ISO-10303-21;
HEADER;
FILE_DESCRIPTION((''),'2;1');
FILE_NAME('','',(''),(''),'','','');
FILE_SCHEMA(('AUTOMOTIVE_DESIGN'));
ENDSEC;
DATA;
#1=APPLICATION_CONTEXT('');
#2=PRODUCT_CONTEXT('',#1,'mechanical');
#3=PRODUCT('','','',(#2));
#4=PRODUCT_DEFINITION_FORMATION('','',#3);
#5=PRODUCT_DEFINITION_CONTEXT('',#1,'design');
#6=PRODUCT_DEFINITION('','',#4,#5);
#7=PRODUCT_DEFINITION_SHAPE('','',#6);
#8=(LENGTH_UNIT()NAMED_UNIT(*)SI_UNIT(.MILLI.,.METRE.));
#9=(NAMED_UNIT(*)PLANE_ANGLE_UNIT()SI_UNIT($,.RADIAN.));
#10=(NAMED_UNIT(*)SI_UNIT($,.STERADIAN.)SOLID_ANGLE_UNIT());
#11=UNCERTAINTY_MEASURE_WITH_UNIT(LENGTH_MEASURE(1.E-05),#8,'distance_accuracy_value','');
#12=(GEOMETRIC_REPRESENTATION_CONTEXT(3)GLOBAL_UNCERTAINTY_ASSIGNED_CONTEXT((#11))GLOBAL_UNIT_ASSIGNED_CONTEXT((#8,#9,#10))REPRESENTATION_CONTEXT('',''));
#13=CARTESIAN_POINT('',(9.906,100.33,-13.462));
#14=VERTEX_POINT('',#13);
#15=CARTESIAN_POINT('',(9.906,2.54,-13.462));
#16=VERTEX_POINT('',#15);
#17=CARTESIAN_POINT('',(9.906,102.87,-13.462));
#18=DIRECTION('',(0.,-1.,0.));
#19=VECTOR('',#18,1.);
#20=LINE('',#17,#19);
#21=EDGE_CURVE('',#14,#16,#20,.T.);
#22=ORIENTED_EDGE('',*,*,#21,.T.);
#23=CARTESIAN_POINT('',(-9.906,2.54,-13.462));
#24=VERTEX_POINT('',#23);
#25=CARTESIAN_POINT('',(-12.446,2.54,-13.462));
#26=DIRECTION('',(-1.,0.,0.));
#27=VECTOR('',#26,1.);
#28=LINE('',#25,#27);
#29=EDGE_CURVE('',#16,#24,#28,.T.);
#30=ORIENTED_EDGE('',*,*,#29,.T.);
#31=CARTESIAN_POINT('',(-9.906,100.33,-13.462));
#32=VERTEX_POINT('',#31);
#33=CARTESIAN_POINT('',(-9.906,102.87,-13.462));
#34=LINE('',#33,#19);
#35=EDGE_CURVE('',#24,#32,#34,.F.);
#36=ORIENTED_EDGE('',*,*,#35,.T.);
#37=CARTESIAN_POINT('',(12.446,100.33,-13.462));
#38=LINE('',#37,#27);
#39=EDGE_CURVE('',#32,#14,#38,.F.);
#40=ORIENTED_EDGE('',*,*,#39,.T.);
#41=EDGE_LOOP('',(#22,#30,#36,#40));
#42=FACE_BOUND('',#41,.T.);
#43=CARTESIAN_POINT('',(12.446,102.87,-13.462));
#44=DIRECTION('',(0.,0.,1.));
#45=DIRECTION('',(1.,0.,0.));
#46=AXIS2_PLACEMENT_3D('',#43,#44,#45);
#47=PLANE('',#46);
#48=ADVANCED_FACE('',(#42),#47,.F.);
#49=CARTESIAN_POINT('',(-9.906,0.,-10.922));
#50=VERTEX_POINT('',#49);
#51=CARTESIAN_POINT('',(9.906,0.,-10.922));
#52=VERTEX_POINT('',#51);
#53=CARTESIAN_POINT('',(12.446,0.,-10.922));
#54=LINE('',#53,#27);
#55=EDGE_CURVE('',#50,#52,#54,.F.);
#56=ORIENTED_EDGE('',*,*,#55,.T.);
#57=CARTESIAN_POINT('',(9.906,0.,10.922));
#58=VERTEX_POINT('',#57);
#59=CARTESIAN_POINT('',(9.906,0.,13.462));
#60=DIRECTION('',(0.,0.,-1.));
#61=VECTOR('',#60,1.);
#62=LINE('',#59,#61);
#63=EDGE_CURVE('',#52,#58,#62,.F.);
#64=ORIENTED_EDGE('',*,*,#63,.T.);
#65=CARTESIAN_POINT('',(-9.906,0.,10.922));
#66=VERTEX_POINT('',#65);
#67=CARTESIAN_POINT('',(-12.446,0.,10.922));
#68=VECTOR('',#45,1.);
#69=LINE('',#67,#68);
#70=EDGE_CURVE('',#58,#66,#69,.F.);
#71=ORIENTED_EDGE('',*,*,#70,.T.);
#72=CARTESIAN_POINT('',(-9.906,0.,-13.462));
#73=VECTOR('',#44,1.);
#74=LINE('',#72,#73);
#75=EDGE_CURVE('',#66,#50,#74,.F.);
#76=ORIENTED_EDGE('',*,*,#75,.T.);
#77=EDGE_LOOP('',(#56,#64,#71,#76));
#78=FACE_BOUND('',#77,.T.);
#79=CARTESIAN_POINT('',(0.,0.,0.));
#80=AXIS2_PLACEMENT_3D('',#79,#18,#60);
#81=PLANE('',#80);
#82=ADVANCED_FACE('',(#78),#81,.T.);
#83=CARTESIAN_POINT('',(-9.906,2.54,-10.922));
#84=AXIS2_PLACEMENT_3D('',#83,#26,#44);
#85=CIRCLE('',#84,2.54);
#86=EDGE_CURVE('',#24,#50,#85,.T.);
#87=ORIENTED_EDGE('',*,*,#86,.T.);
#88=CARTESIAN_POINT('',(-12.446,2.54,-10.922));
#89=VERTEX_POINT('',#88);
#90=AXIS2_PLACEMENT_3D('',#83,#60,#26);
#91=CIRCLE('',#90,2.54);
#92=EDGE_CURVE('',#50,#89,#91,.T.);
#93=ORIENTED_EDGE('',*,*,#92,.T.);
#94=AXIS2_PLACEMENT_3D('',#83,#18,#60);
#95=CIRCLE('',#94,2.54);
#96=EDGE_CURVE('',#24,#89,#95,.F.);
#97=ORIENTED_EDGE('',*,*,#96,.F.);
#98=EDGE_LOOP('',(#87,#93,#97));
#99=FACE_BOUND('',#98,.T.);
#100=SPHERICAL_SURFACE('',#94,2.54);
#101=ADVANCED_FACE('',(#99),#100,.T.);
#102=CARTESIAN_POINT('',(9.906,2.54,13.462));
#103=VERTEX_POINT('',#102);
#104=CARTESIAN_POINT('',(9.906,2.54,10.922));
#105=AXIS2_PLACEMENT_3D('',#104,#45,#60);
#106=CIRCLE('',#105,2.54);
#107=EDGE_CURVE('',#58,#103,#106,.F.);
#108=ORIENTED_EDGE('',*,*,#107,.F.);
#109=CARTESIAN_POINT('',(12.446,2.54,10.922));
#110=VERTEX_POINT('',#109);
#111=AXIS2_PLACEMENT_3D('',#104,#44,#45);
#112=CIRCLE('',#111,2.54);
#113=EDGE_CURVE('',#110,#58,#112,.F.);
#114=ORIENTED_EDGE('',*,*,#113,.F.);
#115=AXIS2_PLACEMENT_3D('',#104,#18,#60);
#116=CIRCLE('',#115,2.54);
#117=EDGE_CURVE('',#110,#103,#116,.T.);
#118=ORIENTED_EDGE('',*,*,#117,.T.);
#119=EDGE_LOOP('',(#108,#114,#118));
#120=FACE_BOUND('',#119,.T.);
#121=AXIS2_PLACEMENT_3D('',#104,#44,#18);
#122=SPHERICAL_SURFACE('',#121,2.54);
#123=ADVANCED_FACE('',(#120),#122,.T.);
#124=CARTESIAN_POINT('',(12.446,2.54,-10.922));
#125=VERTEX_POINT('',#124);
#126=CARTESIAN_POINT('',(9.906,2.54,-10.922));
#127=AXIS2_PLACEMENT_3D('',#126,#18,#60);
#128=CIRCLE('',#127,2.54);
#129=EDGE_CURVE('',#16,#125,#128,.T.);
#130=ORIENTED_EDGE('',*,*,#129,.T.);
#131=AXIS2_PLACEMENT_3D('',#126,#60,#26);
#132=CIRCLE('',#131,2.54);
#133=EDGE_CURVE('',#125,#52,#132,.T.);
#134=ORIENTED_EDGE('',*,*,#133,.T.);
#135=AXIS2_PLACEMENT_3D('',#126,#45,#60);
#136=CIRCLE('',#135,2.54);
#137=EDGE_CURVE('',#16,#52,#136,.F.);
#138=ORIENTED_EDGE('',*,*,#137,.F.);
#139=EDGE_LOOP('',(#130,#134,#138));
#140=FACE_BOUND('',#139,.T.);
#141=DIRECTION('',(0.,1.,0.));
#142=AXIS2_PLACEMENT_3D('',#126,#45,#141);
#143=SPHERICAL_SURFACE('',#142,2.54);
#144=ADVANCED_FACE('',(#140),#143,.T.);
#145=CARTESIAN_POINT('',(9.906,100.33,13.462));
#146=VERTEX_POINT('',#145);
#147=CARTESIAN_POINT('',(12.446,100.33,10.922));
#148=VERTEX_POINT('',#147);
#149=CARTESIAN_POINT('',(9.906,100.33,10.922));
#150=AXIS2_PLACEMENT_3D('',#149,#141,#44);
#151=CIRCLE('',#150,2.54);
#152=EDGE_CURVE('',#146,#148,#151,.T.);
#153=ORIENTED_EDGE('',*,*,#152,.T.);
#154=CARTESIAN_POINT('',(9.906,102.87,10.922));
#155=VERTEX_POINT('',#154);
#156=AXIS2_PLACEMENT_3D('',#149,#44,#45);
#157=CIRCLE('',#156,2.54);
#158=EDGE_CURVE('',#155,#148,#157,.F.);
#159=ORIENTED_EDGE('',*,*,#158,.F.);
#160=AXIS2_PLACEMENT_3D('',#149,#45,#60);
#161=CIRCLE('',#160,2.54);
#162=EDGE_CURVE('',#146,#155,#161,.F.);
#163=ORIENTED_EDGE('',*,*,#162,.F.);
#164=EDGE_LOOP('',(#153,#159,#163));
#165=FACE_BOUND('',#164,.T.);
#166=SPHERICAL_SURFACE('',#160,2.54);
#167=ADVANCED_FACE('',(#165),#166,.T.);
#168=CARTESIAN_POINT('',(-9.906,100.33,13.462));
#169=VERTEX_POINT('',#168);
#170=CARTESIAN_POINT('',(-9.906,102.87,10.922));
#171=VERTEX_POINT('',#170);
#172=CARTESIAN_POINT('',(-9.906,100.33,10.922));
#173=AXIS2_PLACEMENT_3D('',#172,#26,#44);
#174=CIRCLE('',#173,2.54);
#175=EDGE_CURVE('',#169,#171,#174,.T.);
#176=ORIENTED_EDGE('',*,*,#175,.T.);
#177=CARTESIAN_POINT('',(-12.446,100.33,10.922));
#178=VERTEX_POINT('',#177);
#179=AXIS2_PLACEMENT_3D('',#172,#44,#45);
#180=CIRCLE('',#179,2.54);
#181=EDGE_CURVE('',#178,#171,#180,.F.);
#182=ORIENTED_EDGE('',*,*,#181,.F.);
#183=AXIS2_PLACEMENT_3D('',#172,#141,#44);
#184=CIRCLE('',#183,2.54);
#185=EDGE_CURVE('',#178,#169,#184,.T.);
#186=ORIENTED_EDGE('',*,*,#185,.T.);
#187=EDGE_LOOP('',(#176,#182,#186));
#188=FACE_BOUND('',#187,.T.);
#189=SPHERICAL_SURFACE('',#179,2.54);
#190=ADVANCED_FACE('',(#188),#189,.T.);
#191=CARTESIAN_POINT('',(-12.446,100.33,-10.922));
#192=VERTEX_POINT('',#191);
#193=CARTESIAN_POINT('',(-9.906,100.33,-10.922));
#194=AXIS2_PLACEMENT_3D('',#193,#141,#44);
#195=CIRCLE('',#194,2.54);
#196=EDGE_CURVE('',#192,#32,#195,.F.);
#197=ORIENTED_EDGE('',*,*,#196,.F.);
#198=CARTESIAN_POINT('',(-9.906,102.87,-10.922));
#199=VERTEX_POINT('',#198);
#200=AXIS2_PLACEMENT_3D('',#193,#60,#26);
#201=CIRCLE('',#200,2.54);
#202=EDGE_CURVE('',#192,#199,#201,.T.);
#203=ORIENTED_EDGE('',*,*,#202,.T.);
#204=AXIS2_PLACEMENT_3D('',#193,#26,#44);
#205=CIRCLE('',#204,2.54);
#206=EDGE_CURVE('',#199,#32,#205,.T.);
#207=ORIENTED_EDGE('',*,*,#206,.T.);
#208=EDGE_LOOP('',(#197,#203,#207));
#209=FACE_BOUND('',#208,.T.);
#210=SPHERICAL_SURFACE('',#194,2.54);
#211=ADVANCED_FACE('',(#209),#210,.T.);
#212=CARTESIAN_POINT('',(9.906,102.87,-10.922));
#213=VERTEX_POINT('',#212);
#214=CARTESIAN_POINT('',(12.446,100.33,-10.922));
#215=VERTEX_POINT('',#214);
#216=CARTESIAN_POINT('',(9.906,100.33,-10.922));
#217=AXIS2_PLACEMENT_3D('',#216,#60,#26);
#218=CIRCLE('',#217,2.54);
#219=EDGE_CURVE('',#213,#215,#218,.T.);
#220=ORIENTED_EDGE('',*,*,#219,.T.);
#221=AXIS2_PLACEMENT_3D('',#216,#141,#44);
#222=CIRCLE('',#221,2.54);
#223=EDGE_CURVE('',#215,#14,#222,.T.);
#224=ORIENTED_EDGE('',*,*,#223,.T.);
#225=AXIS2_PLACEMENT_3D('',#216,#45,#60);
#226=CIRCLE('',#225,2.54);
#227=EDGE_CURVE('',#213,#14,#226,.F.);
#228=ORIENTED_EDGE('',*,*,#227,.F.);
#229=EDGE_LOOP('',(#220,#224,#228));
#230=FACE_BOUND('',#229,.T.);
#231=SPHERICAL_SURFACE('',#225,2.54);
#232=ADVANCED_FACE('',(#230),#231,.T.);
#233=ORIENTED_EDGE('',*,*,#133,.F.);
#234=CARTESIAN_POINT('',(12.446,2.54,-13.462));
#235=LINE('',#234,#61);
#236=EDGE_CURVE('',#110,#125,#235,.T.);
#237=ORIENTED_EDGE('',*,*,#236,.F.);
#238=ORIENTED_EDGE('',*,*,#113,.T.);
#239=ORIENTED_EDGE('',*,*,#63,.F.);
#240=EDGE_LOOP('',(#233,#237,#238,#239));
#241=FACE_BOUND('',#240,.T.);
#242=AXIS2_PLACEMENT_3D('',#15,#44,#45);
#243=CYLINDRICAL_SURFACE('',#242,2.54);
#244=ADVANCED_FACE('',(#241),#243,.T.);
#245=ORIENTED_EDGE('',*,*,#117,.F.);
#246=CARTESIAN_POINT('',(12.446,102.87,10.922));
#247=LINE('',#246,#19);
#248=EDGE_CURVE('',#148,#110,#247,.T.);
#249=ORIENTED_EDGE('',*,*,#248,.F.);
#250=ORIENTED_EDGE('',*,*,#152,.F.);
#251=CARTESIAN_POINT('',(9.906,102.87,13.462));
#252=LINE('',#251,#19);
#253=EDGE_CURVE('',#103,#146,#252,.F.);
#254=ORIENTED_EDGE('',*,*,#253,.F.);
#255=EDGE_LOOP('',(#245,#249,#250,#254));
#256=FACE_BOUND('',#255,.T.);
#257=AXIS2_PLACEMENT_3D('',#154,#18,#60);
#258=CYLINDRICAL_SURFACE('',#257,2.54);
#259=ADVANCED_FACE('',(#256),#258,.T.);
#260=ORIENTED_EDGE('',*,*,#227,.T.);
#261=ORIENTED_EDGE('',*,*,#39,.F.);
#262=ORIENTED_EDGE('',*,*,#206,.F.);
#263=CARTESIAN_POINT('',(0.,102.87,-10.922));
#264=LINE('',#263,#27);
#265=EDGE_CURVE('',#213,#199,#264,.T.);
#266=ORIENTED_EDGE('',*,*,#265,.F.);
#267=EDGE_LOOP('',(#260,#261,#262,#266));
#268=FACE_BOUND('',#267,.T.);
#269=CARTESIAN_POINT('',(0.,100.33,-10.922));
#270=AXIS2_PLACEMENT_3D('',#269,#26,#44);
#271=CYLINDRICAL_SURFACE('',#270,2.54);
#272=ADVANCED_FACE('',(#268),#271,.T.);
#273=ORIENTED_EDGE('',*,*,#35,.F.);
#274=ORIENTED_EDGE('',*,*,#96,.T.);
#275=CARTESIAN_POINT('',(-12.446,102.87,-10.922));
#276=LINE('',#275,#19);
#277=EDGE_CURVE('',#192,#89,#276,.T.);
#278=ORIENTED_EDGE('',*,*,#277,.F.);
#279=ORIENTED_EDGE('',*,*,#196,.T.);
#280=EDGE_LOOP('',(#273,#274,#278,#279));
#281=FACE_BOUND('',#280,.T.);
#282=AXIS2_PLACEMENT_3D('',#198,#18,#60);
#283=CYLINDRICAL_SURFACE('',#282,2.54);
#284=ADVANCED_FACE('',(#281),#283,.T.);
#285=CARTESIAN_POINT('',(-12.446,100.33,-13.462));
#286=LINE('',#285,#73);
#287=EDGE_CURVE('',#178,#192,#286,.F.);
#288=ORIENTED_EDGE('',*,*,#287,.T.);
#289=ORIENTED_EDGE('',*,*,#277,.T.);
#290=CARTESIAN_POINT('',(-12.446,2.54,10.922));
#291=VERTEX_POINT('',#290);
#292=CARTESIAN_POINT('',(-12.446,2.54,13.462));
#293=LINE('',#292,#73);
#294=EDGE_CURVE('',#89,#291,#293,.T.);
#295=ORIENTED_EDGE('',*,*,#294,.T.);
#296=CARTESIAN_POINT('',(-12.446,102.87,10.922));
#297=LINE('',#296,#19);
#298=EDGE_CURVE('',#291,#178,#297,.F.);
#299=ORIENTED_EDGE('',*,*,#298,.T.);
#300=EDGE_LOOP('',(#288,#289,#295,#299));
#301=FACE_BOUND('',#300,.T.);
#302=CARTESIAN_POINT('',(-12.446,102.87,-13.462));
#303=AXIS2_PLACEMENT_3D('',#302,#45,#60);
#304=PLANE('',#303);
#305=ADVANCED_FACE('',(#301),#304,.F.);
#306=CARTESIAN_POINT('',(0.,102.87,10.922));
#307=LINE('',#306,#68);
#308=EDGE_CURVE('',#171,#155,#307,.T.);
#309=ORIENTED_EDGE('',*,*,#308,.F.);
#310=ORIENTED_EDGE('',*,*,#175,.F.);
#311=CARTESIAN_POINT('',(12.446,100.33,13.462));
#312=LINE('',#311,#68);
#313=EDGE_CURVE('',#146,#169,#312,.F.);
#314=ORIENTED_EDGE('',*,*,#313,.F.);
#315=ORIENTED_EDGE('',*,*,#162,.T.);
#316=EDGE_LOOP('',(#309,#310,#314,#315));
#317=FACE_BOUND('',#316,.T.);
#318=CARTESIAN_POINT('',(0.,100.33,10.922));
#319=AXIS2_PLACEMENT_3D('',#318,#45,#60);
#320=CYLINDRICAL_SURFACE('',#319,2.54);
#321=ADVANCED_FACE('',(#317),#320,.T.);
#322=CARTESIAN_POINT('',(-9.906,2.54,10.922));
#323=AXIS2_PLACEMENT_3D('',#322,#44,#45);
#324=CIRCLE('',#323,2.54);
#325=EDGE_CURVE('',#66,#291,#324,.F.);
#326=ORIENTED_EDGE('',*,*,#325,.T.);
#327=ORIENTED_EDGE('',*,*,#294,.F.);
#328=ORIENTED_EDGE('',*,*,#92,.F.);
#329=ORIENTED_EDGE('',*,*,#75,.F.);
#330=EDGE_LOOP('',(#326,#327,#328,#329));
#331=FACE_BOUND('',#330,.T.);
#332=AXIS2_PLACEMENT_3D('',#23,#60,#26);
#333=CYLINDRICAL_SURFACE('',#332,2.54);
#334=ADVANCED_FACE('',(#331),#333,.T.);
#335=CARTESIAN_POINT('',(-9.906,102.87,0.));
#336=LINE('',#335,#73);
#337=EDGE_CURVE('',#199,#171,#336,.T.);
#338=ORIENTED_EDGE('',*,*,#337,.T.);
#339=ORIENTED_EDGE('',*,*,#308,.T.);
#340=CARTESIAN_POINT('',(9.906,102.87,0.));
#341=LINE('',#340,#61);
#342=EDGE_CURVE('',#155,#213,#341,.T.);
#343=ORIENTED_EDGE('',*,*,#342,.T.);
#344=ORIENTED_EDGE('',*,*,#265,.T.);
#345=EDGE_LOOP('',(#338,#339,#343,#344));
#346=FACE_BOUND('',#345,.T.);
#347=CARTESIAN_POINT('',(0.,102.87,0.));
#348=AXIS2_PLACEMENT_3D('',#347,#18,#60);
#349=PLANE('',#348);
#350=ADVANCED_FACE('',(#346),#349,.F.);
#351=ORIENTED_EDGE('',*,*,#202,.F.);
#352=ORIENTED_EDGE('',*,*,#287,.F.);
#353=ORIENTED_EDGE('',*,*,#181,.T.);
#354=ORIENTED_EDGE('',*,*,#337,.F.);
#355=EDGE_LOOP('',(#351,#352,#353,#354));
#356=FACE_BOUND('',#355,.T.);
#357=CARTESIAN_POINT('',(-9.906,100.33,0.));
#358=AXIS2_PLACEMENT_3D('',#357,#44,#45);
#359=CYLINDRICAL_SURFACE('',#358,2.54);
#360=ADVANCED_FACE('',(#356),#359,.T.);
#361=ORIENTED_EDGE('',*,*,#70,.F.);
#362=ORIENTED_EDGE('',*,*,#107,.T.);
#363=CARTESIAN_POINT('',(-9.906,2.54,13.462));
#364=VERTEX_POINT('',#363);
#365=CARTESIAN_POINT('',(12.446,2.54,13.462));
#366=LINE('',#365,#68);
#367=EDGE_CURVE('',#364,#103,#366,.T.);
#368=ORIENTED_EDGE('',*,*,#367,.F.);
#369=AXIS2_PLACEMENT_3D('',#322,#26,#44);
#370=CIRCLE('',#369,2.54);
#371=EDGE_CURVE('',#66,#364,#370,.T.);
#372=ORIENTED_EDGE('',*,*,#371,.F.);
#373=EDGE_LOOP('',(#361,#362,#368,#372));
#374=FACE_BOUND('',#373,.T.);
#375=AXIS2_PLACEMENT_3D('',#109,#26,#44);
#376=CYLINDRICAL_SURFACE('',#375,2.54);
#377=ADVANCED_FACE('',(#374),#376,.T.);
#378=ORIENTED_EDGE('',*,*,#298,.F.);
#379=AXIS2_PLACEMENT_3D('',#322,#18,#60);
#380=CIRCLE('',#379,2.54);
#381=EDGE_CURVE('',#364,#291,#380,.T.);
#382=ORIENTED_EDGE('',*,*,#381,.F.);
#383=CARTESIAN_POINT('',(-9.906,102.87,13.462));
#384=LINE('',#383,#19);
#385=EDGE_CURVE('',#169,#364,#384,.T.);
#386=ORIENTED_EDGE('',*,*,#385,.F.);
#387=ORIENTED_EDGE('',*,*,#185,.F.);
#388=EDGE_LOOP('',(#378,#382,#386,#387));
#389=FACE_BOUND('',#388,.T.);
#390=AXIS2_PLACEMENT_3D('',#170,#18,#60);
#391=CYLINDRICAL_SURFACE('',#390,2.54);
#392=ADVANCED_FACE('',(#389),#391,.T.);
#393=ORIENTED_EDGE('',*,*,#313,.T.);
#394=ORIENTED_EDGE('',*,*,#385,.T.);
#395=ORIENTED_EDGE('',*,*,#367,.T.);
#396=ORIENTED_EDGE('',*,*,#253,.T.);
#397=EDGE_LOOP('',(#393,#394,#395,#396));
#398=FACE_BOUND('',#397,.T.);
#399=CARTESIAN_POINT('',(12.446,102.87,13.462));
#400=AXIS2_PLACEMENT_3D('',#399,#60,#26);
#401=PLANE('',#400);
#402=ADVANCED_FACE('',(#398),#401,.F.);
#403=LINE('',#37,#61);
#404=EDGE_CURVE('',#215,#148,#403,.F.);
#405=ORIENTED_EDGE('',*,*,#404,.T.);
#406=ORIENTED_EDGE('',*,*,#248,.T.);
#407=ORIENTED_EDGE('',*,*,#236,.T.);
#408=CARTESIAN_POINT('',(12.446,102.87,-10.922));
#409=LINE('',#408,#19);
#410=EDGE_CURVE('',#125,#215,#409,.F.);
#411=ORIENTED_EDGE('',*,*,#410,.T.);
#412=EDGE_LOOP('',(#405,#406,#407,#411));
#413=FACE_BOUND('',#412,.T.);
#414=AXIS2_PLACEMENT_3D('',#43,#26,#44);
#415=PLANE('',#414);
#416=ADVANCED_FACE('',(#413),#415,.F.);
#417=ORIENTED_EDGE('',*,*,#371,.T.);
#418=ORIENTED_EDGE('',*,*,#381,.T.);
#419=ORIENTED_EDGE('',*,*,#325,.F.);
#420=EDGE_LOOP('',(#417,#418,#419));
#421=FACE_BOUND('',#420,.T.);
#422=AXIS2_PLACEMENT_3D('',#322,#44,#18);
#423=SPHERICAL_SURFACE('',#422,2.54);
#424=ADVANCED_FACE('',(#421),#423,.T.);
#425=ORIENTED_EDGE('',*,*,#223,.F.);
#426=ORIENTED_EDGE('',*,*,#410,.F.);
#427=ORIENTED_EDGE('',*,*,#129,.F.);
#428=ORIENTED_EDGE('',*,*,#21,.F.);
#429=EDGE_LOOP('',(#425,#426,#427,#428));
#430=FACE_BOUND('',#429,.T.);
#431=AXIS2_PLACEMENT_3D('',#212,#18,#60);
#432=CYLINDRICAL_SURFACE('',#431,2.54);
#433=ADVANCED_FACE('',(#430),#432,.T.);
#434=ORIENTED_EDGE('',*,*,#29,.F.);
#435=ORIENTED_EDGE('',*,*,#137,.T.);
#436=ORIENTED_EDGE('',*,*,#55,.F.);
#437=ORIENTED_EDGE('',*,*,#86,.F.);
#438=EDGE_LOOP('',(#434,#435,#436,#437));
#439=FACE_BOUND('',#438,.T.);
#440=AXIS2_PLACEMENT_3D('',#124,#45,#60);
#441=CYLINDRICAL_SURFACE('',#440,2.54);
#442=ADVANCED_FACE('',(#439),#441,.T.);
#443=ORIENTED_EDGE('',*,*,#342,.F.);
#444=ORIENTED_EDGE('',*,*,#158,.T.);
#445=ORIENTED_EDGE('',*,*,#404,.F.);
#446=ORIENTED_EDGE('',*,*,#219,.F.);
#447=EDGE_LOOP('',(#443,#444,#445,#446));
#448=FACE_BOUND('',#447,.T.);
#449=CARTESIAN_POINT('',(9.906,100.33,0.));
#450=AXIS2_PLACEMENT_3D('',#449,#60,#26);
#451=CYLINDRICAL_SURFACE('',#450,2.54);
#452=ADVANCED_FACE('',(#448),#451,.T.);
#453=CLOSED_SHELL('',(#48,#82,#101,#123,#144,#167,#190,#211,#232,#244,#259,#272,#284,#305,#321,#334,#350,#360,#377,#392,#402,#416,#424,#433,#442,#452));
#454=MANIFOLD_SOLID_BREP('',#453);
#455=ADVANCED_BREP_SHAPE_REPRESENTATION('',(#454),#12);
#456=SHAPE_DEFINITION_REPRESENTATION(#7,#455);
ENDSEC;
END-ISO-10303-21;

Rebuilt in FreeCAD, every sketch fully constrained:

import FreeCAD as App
import Part
import Sketcher
from FreeCAD import Vector
Q = App.Units.Quantity

doc = App.newDocument("Part")
body = doc.addObject("PartDesign::Body", "Body")

# Sketch on XZ plane
sketch1 = body.newObject("Sketcher::SketchObject", "Sketch")
sketch1.AttachmentSupport = (doc.getObject("XZ_Plane"), [""])
sketch1.MapMode = "FlatFace"
sketch1.addGeometry([
    Part.LineSegment(Vector(-12.446, -13.462, 0), Vector(-12.446, 13.462, 0)),
    Part.LineSegment(Vector(-12.446, 13.462, 0), Vector(12.446, 13.462, 0)),
    Part.LineSegment(Vector(12.446, 13.462, 0), Vector(12.446, -13.462, 0)),
    Part.LineSegment(Vector(12.446, -13.462, 0), Vector(-12.446, -13.462, 0)),
], False)
sketch1.addConstraint([
    Sketcher.Constraint("Coincident", 0, 2, 1, 1),
    Sketcher.Constraint("Coincident", 1, 2, 2, 1),
    Sketcher.Constraint("Coincident", 2, 2, 3, 1),
    Sketcher.Constraint("Coincident", 3, 2, 0, 1),
    Sketcher.Constraint("Vertical", 0),
    Sketcher.Constraint("Horizontal", 1),
    Sketcher.Constraint("Vertical", 2),
    Sketcher.Constraint("Horizontal", 3),
    Sketcher.Constraint("Symmetric", 0, 2, 2, 2, -1, 1),
    Sketcher.Constraint("DistanceX", 1, 1, 1, 2, Q("0.98 in")),
    Sketcher.Constraint("DistanceY", 0, 1, 0, 2, Q("1.06 in")),
])
pad1 = body.newObject("PartDesign::Pad", "Pad")
pad1.Profile = sketch1
pad1.Length = Q("4.05 in")
pad1.Reversed = True
doc.recompute()

fillet = body.newObject("PartDesign::Fillet", "Fillet")
fillet.Base = (pad1, ["Edge1"])
fillet.UseAllEdges = True
fillet.Radius = Q("0.1 in")

doc.recompute()
